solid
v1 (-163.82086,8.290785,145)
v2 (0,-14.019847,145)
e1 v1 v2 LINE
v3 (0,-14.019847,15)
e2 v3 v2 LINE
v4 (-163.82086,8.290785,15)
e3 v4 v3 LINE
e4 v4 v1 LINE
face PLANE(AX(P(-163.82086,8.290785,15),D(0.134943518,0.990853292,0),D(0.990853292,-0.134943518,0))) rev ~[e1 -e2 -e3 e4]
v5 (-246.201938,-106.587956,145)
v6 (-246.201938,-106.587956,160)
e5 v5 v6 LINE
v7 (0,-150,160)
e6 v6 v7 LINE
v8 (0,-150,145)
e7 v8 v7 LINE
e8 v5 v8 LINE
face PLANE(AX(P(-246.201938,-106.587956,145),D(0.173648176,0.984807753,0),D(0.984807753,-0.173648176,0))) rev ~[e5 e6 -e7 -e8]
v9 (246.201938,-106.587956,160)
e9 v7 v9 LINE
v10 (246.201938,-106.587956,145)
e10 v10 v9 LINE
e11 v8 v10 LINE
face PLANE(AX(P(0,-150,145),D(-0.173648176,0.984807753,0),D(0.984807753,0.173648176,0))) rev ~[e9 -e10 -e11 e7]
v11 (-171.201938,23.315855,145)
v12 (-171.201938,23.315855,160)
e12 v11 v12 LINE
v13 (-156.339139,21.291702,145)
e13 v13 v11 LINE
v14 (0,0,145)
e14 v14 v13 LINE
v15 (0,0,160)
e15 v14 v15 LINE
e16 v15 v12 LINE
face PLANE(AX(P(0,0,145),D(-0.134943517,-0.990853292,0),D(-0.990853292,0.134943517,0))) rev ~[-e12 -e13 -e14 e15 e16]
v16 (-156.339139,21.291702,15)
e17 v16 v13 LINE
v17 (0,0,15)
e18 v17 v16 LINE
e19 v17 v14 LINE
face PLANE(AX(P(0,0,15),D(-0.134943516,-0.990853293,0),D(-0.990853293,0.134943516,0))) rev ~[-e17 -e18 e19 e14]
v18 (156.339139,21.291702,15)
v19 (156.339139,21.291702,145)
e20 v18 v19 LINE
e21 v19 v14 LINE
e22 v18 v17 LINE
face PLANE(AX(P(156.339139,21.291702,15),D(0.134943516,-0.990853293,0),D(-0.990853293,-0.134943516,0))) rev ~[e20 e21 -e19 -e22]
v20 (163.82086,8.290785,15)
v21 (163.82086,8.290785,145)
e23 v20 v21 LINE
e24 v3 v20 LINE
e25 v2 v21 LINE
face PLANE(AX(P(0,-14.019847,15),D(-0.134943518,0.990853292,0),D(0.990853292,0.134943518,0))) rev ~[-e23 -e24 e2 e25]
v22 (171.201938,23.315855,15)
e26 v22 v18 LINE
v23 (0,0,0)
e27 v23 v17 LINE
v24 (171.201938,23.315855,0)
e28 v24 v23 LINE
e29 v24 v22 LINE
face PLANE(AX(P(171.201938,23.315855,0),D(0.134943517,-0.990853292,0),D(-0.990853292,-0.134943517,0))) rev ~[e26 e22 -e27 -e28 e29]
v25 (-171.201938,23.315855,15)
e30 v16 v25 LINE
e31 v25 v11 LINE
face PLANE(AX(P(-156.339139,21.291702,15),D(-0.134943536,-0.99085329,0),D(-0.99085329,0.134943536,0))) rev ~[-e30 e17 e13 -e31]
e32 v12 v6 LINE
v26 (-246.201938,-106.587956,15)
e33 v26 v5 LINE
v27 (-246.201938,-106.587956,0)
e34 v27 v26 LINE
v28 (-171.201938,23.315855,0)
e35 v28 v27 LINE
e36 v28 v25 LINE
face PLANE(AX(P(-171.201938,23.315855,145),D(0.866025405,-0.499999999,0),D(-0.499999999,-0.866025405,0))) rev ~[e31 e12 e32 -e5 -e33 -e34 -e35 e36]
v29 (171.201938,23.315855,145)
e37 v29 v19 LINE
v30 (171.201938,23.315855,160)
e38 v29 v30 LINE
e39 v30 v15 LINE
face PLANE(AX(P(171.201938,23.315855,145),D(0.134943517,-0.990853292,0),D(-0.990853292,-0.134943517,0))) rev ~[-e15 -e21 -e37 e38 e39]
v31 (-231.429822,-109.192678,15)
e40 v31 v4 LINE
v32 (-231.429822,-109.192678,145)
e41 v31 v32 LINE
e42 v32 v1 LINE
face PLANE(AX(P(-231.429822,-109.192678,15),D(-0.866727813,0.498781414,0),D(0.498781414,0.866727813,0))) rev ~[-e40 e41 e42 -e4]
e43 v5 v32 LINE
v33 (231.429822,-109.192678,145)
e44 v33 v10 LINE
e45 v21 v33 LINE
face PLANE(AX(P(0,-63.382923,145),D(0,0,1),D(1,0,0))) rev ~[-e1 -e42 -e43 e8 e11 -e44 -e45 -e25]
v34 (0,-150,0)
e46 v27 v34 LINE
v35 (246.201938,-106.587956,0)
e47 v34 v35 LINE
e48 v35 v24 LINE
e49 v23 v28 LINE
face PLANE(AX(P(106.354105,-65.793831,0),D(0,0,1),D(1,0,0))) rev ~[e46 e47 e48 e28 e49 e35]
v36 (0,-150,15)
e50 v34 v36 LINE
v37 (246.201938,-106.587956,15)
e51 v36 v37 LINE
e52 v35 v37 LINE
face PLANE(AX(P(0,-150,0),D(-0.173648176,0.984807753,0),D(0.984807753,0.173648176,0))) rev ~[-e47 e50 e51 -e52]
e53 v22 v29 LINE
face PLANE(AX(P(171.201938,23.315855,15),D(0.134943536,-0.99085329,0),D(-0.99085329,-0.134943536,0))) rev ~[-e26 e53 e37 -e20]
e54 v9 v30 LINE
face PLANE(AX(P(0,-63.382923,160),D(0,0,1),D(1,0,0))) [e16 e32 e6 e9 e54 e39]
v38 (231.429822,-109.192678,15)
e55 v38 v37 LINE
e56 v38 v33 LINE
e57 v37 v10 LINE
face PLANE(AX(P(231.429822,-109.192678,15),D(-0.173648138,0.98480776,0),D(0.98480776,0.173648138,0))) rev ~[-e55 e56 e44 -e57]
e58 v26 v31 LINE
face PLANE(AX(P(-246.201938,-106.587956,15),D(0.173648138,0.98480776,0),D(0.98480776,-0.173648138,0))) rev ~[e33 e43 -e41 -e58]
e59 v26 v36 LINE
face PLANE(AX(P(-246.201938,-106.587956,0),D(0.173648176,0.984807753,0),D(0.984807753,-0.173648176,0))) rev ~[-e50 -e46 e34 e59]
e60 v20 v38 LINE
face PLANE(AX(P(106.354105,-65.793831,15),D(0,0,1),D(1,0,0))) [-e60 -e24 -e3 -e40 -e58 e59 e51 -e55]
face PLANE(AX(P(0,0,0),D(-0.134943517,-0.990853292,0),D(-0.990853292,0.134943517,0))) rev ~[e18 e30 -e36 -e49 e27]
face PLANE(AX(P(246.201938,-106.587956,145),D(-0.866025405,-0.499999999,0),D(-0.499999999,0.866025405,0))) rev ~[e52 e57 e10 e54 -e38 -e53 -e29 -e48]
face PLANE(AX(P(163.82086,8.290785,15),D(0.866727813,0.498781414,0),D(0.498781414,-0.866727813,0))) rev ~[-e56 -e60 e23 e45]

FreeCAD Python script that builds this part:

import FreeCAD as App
import Part
import Sketcher
from FreeCAD import Vector
Q = App.Units.Quantity

doc = App.newDocument("Part")
body = doc.addObject("PartDesign::Body", "Body")

sketch1 = body.newObject("Sketcher::SketchObject", "Sketch")
sketch1.AttachmentSupport = (doc.getObject("XY_Plane"), [""])
sketch1.MapMode = "FlatFace"
sketch1.addGeometry([
    Part.LineSegment(Vector(171, 23, 0), Vector(0, 0, 0)),
    Part.LineSegment(Vector(0, 0, 0), Vector(-171, 23, 0)),
    Part.LineSegment(Vector(-171, 23, 0), Vector(-246, -107, 0)),
    Part.LineSegment(Vector(-246, -107, 0), Vector(0, -150, 0)),
    Part.LineSegment(Vector(0, -150, 0), Vector(246, -107, 0)),
    Part.LineSegment(Vector(246, -107, 0), Vector(171, 23, 0)),
], False)
sketch1.addConstraint([
    Sketcher.Constraint("Coincident", 0, 2, 1, 1),
    Sketcher.Constraint("Coincident", 1, 2, 2, 1),
    Sketcher.Constraint("Coincident", 2, 2, 3, 1),
    Sketcher.Constraint("Coincident", 3, 2, 4, 1),
    Sketcher.Constraint("Coincident", 4, 2, 5, 1),
    Sketcher.Constraint("Coincident", 5, 2, 0, 1),
    Sketcher.Constraint("Coincident", 0, 2, -1, 1),
    Sketcher.Constraint("Symmetric", 2, 2, 4, 2, -2),
    Sketcher.Constraint("Symmetric", 1, 2, 5, 2, -2),
    Sketcher.Constraint("PointOnObject", 3, 2, -2),
    Sketcher.Constraint("Angle", 2, Q("-120 deg")),
    Sketcher.Constraint("Angle", 3, Q("-10 deg")),
    Sketcher.Constraint("Distance", 2, 150.0),
    Sketcher.Constraint("Distance", 3, 250.0),
    Sketcher.Constraint("DistanceY", 3, 2, -1, 1, 150.0),
])
pad1 = body.newObject("PartDesign::Pad", "Pad")
pad1.Profile = sketch1
pad1.Length = 15

sketch2 = body.newObject("Sketcher::SketchObject", "Sketch001")
sketch2.AttachmentSupport = (doc.getObject("XY_Plane"), [""])
sketch2.MapMode = "FlatFace"
sketch2.AttachmentOffset = App.Placement(Vector(0, 0, 15), App.Rotation())
sketch2.addGeometry([
    Part.LineSegment(Vector(-171, 23, 0), Vector(-246, -107, 0)),
    Part.LineSegment(Vector(-246, -107, 0), Vector(-231, -109, 0)),
    Part.LineSegment(Vector(-231, -109, 0), Vector(-164, 8, 0)),
    Part.LineSegment(Vector(-164, 8, 0), Vector(0, -14, 0)),
    Part.LineSegment(Vector(0, -14, 0), Vector(164, 8, 0)),
    Part.LineSegment(Vector(164, 8, 0), Vector(231, -109, 0)),
    Part.LineSegment(Vector(231, -109, 0), Vector(246, -107, 0)),
    Part.LineSegment(Vector(246, -107, 0), Vector(171, 23, 0)),
    Part.LineSegment(Vector(171, 23, 0), Vector(156, 21, 0)),
    Part.LineSegment(Vector(156, 21, 0), Vector(0, 0, 0)),
    Part.LineSegment(Vector(0, 0, 0), Vector(-156, 21, 0)),
    Part.LineSegment(Vector(-156, 21, 0), Vector(-171, 23, 0)),
], False)
sketch2.addConstraint([
    Sketcher.Constraint("Coincident", 0, 2, 1, 1),
    Sketcher.Constraint("Coincident", 1, 2, 2, 1),
    Sketcher.Constraint("Coincident", 2, 2, 3, 1),
    Sketcher.Constraint("Coincident", 3, 2, 4, 1),
    Sketcher.Constraint("Coincident", 4, 2, 5, 1),
    Sketcher.Constraint("Coincident", 5, 2, 6, 1),
    Sketcher.Constraint("Coincident", 6, 2, 7, 1),
    Sketcher.Constraint("Coincident", 7, 2, 8, 1),
    Sketcher.Constraint("Coincident", 8, 2, 9, 1),
    Sketcher.Constraint("Coincident", 9, 2, 10, 1),
    Sketcher.Constraint("Coincident", 10, 2, 11, 1),
    Sketcher.Constraint("Coincident", 11, 2, 0, 1),
    Sketcher.Constraint("Coincident", 9, 2, -1, 1),
    Sketcher.Constraint("Symmetric", 2, 2, 4, 2, -2),
    Sketcher.Constraint("Symmetric", 1, 2, 5, 2, -2),
    Sketcher.Constraint("Symmetric", 0, 2, 6, 2, -2),
    Sketcher.Constraint("Symmetric", 8, 2, 10, 2, -2),
    Sketcher.Constraint("Symmetric", 7, 2, 11, 2, -2),
    Sketcher.Constraint("PointOnObject", 3, 2, -2),
    Sketcher.Constraint("Parallel", 4, 8),
    Sketcher.Constraint("Parallel", 8, 9),
    Sketcher.Constraint("Equal", 6, 8),
    Sketcher.Constraint("Angle", 0, Q("-120 deg")),
    Sketcher.Constraint("Angle", 1, Q("-9.999998 deg")),
    Sketcher.Constraint("Distance", 0, 150.0),
    Sketcher.Constraint("Distance", 1, 15.0),
    Sketcher.Constraint("DistanceX", 0, 2, 4, 2, 410.022798),
    Sketcher.Constraint("DistanceY", 3, 2, 7, 2, 37.335702),
    Sketcher.Constraint("Distance", 2, 135.548279),
    Sketcher.Constraint("DistanceX", 0, 2, -1, 1, 246.201938),
])
pad2 = body.newObject("PartDesign::Pad", "Pad001")
pad2.Profile = sketch2
pad2.Length = 130

sketch3 = body.newObject("Sketcher::SketchObject", "Sketch002")
sketch3.AttachmentSupport = (doc.getObject("XY_Plane"), [""])
sketch3.MapMode = "FlatFace"
sketch3.AttachmentOffset = App.Placement(Vector(0, 0, 145), App.Rotation())
sketch3.addGeometry([
    Part.LineSegment(Vector(-171, 23, 0), Vector(-246, -107, 0)),
    Part.LineSegment(Vector(-246, -107, 0), Vector(0, -150, 0)),
    Part.LineSegment(Vector(0, -150, 0), Vector(246, -107, 0)),
    Part.LineSegment(Vector(246, -107, 0), Vector(171, 23, 0)),
    Part.LineSegment(Vector(171, 23, 0), Vector(0, 0, 0)),
    Part.LineSegment(Vector(0, 0, 0), Vector(-171, 23, 0)),
], False)
sketch3.addConstraint([
    Sketcher.Constraint("Coincident", 0, 2, 1, 1),
    Sketcher.Constraint("Coincident", 1, 2, 2, 1),
    Sketcher.Constraint("Coincident", 2, 2, 3, 1),
    Sketcher.Constraint("Coincident", 3, 2, 4, 1),
    Sketcher.Constraint("Coincident", 4, 2, 5, 1),
    Sketcher.Constraint("Coincident", 5, 2, 0, 1),
    Sketcher.Constraint("Coincident", 4, 2, -1, 1),
    Sketcher.Constraint("Symmetric", 0, 2, 2, 2, -2),
    Sketcher.Constraint("Symmetric", 3, 2, 5, 2, -2),
    Sketcher.Constraint("PointOnObject", 1, 2, -2),
    Sketcher.Constraint("Angle", 0, Q("-120 deg")),
    Sketcher.Constraint("Angle", 1, Q("-10 deg")),
    Sketcher.Constraint("Distance", 0, 150.0),
    Sketcher.Constraint("Distance", 1, 250.0),
    Sketcher.Constraint("DistanceY", 1, 2, -1, 1, 150.0),
])
pad3 = body.newObject("PartDesign::Pad", "Pad002")
pad3.Profile = sketch3
pad3.Length = 15

doc.recompute()
